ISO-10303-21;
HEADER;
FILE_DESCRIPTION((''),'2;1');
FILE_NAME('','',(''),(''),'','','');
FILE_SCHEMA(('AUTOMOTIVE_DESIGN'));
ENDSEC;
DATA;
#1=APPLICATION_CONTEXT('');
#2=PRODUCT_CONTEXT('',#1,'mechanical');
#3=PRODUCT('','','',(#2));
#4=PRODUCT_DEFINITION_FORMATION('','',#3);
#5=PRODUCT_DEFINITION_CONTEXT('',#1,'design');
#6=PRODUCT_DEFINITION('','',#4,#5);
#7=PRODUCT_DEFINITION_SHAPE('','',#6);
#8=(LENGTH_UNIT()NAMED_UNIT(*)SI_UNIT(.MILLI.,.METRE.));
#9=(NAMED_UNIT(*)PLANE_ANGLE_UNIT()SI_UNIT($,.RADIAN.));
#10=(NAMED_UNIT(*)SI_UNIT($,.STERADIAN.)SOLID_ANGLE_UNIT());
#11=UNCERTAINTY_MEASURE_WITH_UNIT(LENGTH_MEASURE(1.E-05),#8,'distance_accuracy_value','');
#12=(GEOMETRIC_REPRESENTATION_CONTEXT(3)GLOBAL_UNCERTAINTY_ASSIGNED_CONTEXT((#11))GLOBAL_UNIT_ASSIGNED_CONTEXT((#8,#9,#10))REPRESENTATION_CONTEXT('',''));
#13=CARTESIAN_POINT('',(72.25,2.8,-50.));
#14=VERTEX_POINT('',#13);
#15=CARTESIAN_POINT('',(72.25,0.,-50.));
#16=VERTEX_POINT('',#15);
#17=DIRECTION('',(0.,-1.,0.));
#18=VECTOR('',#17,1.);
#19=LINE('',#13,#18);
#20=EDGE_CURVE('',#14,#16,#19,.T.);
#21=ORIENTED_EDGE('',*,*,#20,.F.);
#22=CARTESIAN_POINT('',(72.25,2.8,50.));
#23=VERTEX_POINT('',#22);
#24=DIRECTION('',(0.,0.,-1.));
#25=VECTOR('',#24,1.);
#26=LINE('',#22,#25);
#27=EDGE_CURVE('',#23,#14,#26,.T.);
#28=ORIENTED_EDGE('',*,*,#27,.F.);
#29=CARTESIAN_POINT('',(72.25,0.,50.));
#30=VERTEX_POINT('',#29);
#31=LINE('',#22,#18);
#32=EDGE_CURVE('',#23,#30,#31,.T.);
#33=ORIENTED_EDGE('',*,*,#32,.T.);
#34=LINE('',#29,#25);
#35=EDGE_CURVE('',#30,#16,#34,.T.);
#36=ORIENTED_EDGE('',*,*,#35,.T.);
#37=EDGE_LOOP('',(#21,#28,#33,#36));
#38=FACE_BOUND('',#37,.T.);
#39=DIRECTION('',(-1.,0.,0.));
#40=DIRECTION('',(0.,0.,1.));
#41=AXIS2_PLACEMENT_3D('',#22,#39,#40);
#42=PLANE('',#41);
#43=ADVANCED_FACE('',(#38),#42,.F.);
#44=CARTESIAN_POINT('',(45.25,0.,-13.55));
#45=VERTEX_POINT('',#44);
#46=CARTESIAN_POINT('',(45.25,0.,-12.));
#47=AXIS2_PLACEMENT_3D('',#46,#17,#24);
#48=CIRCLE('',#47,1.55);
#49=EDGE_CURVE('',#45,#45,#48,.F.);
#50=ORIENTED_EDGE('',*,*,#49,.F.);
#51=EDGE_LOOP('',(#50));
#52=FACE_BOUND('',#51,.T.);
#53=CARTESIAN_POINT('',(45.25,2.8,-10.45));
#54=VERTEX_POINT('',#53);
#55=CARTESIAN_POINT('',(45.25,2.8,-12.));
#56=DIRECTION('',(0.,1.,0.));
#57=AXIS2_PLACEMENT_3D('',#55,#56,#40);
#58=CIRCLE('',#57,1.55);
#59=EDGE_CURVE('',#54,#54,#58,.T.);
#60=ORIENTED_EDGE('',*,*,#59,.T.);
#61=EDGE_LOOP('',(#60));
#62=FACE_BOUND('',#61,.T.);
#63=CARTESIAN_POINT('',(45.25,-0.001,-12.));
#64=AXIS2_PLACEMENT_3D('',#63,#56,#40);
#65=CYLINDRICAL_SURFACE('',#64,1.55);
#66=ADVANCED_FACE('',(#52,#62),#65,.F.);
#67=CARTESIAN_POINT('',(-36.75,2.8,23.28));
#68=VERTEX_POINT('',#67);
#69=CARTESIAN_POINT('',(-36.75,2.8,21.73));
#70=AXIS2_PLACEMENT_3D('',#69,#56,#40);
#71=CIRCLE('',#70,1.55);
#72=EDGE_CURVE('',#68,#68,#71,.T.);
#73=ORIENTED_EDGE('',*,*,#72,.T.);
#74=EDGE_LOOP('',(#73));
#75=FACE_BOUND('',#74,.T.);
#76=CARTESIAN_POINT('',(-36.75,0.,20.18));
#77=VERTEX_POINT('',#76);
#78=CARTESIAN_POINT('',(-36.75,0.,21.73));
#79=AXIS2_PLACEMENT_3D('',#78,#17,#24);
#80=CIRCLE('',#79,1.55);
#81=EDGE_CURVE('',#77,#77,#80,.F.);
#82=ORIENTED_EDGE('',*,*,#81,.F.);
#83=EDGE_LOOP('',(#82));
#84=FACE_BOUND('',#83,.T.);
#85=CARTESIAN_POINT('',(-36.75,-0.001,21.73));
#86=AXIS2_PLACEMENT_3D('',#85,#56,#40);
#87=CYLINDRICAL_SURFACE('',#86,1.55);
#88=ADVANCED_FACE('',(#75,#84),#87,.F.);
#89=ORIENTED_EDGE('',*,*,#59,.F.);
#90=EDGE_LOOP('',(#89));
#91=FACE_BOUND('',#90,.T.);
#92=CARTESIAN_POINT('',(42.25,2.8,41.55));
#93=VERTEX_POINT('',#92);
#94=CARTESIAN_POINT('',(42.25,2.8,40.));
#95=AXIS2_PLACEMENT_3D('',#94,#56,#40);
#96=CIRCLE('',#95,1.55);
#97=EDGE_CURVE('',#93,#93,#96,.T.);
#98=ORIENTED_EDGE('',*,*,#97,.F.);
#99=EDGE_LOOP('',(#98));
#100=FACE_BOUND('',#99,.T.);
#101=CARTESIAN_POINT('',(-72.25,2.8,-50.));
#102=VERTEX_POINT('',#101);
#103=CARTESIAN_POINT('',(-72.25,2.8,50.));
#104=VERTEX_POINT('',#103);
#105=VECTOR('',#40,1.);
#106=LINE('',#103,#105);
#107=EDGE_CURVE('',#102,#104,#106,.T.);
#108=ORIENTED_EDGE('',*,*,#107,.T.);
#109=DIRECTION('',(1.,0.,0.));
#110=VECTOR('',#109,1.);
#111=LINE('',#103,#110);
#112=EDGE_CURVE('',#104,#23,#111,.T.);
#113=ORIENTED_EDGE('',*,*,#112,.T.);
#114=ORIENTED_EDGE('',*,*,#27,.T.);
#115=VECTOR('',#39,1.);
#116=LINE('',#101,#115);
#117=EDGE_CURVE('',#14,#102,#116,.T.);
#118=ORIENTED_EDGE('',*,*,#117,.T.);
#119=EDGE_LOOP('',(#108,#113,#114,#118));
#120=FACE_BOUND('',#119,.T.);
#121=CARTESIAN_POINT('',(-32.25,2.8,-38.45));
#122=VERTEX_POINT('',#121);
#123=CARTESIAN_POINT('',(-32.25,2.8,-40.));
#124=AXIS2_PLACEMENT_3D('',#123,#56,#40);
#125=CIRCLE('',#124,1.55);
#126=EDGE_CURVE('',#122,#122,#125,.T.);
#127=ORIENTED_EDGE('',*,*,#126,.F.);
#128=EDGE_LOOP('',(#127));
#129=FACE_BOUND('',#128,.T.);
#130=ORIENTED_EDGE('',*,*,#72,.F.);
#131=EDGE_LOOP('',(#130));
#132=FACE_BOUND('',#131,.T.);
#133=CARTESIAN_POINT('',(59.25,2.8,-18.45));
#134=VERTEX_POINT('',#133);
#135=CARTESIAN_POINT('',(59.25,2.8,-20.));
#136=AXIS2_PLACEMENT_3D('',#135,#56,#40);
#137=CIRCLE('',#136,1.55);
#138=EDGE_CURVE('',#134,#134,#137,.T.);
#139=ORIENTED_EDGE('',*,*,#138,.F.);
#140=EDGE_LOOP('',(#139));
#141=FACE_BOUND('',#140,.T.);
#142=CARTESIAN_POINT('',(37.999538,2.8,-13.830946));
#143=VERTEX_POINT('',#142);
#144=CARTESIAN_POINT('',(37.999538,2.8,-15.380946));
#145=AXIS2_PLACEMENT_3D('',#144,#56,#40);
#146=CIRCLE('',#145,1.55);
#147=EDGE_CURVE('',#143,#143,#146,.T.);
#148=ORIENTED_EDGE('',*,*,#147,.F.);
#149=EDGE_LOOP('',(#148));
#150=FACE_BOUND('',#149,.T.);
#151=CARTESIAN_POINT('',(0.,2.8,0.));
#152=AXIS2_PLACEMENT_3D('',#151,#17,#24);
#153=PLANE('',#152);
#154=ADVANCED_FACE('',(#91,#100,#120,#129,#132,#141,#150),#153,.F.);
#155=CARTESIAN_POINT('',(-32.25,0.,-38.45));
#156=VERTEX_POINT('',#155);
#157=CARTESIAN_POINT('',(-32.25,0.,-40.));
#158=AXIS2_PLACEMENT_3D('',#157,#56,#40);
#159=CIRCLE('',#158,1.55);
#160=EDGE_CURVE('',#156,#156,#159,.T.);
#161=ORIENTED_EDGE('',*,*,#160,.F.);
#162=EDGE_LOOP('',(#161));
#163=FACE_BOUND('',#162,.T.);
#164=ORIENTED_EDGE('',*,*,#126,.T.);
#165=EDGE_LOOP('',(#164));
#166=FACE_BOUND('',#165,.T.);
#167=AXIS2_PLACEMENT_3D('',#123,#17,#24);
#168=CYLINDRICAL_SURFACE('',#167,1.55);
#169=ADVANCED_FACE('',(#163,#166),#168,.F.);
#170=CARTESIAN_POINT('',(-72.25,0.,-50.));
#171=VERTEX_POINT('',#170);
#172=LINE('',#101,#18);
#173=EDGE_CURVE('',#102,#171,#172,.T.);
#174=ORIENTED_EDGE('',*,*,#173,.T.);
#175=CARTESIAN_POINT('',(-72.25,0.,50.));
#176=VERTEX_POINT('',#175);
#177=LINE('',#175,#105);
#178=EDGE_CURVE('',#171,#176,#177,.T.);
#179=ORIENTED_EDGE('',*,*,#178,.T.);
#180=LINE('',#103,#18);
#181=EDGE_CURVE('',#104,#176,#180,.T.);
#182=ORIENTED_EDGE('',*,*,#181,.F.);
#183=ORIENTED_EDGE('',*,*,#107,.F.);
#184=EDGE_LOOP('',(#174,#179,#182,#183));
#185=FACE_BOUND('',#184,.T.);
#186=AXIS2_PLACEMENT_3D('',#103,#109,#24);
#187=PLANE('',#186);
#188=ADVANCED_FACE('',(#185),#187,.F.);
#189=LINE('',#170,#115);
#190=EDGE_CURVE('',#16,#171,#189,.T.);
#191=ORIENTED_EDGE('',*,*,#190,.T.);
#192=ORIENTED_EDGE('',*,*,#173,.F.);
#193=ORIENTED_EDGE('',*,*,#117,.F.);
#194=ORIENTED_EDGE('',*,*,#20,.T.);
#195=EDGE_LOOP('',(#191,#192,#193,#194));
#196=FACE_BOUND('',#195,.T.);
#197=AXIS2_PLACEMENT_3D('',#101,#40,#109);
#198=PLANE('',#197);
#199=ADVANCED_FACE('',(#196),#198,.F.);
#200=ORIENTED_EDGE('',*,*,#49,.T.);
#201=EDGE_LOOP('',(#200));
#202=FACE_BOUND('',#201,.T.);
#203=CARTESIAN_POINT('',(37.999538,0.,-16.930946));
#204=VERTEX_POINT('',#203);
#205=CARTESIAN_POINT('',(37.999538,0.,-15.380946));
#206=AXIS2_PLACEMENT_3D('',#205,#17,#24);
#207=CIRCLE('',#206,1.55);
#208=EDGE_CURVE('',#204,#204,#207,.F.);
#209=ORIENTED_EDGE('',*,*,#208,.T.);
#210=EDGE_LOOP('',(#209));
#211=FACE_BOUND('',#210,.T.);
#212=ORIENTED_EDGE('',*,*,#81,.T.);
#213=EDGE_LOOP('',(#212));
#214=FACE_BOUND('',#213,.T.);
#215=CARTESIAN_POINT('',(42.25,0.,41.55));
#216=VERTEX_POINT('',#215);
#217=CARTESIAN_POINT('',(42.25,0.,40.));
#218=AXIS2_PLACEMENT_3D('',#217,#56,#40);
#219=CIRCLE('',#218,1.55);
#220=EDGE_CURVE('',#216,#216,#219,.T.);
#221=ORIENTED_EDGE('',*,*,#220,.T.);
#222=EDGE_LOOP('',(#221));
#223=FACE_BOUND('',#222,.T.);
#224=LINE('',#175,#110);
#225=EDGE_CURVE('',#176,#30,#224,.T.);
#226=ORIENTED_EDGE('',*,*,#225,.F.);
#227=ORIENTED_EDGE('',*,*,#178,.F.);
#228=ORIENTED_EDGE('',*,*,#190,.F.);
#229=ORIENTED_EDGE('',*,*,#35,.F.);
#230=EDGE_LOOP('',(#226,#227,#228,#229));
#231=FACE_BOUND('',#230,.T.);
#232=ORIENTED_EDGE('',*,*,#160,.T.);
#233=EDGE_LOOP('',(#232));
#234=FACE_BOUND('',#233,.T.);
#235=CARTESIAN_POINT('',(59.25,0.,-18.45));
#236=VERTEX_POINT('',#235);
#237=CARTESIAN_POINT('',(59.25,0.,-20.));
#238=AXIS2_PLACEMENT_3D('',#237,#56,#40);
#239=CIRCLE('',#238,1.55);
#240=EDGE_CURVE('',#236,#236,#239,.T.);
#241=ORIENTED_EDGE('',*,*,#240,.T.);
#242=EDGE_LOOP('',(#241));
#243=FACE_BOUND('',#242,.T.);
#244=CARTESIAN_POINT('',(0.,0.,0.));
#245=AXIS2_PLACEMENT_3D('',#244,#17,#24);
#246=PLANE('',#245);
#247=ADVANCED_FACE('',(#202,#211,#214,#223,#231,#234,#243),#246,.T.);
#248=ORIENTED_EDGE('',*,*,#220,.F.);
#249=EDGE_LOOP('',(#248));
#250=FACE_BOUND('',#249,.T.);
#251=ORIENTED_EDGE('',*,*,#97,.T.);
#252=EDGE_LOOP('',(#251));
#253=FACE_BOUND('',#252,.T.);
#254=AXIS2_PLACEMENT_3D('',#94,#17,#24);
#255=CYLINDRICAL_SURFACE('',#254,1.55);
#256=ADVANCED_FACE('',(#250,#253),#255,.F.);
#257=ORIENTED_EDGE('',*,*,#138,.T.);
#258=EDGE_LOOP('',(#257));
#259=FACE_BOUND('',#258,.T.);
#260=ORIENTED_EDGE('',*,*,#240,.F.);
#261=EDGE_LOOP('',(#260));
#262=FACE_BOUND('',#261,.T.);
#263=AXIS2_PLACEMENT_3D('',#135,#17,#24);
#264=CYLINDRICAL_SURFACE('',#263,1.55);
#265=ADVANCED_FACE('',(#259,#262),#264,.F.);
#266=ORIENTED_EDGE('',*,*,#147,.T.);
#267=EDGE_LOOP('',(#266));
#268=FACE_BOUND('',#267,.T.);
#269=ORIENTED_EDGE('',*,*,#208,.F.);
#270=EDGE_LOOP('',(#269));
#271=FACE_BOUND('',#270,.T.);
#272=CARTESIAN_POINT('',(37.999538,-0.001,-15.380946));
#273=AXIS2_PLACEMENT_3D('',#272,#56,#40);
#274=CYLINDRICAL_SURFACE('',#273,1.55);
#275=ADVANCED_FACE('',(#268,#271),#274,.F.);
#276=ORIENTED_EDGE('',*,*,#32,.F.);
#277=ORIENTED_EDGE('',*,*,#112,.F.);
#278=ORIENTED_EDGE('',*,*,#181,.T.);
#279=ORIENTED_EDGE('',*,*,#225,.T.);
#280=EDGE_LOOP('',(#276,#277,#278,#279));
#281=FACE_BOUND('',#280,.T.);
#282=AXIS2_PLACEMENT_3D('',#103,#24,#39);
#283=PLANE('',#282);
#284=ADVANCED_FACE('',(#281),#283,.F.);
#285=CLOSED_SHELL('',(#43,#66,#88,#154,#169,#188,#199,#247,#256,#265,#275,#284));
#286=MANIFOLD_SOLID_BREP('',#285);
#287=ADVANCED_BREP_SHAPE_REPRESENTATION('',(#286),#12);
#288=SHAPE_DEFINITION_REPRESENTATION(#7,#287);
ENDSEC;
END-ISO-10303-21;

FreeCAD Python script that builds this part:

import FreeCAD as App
import Part
import Sketcher

V = App.Vector


def add_polygon(sketch, points):
    """Adds a closed chain of lines whose ends are joined by coincident constraints."""
    first, n = sketch.GeometryCount, len(points)
    for a, b in zip(points, points[1:] + points[:1]):
        sketch.addGeometry(Part.LineSegment(App.Vector(*a, 0), App.Vector(*b, 0)), False)
    for i in range(n):
        sketch.addConstraint(Sketcher.Constraint("Coincident", first + i, 2, first + (i + 1) % n, 1))

doc = App.newDocument("Part")
body = doc.addObject("PartDesign::Body", "Body")

sketch1 = body.newObject("Sketcher::SketchObject", "Sketch")
sketch1.AttachmentSupport = (doc.getObject("XZ_Plane"), [""])
sketch1.MapMode = "FlatFace"
add_polygon(sketch1, [(-72.2, -50), (-72.2, 50), (72.2, 50), (72.2, -50)])
sketch1.addGeometry(Part.Circle(V(42.2, 40, 0), V(0, 0, 1), 1.6), False)
sketch1.addGeometry(Part.Circle(V(-32.2, -40, 0), V(0, 0, 1), 1.6), False)
sketch1.addGeometry(Part.Circle(V(59.2, -20, 0), V(0, 0, 1), 1.6), False)
sketch1.addConstraint(Sketcher.Constraint("Vertical", 0))
sketch1.addConstraint(Sketcher.Constraint("Horizontal", 1))
sketch1.addConstraint(Sketcher.Constraint("Vertical", 2))
sketch1.addConstraint(Sketcher.Constraint("Horizontal", 3))
sketch1.addConstraint(Sketcher.Constraint("Equal", 4, 5))
sketch1.addConstraint(Sketcher.Constraint("Equal", 5, 6))
sketch1.addConstraint(Sketcher.Constraint("Symmetric", 0, 2, 2, 2, -1, 1))
sketch1.addConstraint(Sketcher.Constraint("Diameter", 4, 3.1))
sketch1.addConstraint(Sketcher.Constraint("DistanceY", 0, 1, 0, 2, 100.0))
sketch1.addConstraint(Sketcher.Constraint("DistanceX", 1, 1, 1, 2, 144.5))
sketch1.addConstraint(Sketcher.Constraint("DistanceY", -1, 1, 4, 3, 40.0))
sketch1.addConstraint(Sketcher.Constraint("DistanceY", 5, 3, -1, 1, 40.0))
sketch1.addConstraint(Sketcher.Constraint("DistanceY", 6, 3, -1, 1, 20.0))
sketch1.addConstraint(Sketcher.Constraint("DistanceX", 4, 3, 6, 3, 17.0))
sketch1.addConstraint(Sketcher.Constraint("DistanceX", 0, 2, 5, 3, 40.0))
sketch1.addConstraint(Sketcher.Constraint("DistanceX", 4, 3, 1, 2, 30.0))
pad1 = body.newObject("PartDesign::Pad", "Pad")
pad1.Profile = sketch1
pad1.Length = 2.8
pad1.Reversed = True

sketch2 = body.newObject("Sketcher::SketchObject", "Sketch001")
sketch2.AttachmentSupport = (doc.getObject("XZ_Plane"), [""])
sketch2.MapMode = "FlatFace"
sketch2.AttachmentOffset = App.Placement(V(0, 0, -2.8), App.Rotation())
sketch2.addGeometry(Part.Circle(V(-36.8, 21.7, 0), V(0, 0, 1), 1.6), False)
sketch2.addConstraint(Sketcher.Constraint("Diameter", 0, 3.1))
sketch2.addConstraint(Sketcher.Constraint("DistanceX", 0, 3, -1, 1, 36.75))
sketch2.addConstraint(Sketcher.Constraint("DistanceY", -1, 1, 0, 3, 21.73))
pocket1 = body.newObject("PartDesign::Pocket", "Pocket")
pocket1.Profile = sketch2
pocket1.Type = "UpToFirst"
pocket1.Reversed = True

sketch3 = body.newObject("Sketcher::SketchObject", "Sketch002")
sketch3.AttachmentSupport = (doc.getObject("XZ_Plane"), [""])
sketch3.MapMode = "FlatFace"
sketch3.AttachmentOffset = App.Placement(V(0, 0, -2.8), App.Rotation())
sketch3.addGeometry(Part.Circle(V(38, -15.4, 0), V(0, 0, 1), 1.6), False)
sketch3.addConstraint(Sketcher.Constraint("Diameter", 0, 3.1))
sketch3.addConstraint(Sketcher.Constraint("DistanceX", -1, 1, 0, 3, 37.999538))
sketch3.addConstraint(Sketcher.Constraint("DistanceY", 0, 3, -1, 1, 15.380946))
pocket2 = body.newObject("PartDesign::Pocket", "Pocket001")
pocket2.Profile = sketch3
pocket2.Type = "UpToFirst"
pocket2.Reversed = True

sketch4 = body.newObject("Sketcher::SketchObject", "Sketch003")
sketch4.AttachmentSupport = (doc.getObject("XZ_Plane"), [""])
sketch4.MapMode = "FlatFace"
sketch4.AttachmentOffset = App.Placement(V(0, 0, -2.8), App.Rotation())
sketch4.addGeometry(Part.Circle(V(45.2, -12, 0), V(0, 0, 1), 1.6), False)
sketch4.addConstraint(Sketcher.Constraint("Diameter", 0, 3.1))
sketch4.addConstraint(Sketcher.Constraint("DistanceY", 0, 3, -1, 1, 12.0))
sketch4.addConstraint(Sketcher.Constraint("DistanceX", -1, 1, 0, 3, 45.25))
pocket3 = body.newObject("PartDesign::Pocket", "Pocket002")
pocket3.Profile = sketch4
pocket3.Type = "UpToFirst"
pocket3.Reversed = True

doc.recompute()
